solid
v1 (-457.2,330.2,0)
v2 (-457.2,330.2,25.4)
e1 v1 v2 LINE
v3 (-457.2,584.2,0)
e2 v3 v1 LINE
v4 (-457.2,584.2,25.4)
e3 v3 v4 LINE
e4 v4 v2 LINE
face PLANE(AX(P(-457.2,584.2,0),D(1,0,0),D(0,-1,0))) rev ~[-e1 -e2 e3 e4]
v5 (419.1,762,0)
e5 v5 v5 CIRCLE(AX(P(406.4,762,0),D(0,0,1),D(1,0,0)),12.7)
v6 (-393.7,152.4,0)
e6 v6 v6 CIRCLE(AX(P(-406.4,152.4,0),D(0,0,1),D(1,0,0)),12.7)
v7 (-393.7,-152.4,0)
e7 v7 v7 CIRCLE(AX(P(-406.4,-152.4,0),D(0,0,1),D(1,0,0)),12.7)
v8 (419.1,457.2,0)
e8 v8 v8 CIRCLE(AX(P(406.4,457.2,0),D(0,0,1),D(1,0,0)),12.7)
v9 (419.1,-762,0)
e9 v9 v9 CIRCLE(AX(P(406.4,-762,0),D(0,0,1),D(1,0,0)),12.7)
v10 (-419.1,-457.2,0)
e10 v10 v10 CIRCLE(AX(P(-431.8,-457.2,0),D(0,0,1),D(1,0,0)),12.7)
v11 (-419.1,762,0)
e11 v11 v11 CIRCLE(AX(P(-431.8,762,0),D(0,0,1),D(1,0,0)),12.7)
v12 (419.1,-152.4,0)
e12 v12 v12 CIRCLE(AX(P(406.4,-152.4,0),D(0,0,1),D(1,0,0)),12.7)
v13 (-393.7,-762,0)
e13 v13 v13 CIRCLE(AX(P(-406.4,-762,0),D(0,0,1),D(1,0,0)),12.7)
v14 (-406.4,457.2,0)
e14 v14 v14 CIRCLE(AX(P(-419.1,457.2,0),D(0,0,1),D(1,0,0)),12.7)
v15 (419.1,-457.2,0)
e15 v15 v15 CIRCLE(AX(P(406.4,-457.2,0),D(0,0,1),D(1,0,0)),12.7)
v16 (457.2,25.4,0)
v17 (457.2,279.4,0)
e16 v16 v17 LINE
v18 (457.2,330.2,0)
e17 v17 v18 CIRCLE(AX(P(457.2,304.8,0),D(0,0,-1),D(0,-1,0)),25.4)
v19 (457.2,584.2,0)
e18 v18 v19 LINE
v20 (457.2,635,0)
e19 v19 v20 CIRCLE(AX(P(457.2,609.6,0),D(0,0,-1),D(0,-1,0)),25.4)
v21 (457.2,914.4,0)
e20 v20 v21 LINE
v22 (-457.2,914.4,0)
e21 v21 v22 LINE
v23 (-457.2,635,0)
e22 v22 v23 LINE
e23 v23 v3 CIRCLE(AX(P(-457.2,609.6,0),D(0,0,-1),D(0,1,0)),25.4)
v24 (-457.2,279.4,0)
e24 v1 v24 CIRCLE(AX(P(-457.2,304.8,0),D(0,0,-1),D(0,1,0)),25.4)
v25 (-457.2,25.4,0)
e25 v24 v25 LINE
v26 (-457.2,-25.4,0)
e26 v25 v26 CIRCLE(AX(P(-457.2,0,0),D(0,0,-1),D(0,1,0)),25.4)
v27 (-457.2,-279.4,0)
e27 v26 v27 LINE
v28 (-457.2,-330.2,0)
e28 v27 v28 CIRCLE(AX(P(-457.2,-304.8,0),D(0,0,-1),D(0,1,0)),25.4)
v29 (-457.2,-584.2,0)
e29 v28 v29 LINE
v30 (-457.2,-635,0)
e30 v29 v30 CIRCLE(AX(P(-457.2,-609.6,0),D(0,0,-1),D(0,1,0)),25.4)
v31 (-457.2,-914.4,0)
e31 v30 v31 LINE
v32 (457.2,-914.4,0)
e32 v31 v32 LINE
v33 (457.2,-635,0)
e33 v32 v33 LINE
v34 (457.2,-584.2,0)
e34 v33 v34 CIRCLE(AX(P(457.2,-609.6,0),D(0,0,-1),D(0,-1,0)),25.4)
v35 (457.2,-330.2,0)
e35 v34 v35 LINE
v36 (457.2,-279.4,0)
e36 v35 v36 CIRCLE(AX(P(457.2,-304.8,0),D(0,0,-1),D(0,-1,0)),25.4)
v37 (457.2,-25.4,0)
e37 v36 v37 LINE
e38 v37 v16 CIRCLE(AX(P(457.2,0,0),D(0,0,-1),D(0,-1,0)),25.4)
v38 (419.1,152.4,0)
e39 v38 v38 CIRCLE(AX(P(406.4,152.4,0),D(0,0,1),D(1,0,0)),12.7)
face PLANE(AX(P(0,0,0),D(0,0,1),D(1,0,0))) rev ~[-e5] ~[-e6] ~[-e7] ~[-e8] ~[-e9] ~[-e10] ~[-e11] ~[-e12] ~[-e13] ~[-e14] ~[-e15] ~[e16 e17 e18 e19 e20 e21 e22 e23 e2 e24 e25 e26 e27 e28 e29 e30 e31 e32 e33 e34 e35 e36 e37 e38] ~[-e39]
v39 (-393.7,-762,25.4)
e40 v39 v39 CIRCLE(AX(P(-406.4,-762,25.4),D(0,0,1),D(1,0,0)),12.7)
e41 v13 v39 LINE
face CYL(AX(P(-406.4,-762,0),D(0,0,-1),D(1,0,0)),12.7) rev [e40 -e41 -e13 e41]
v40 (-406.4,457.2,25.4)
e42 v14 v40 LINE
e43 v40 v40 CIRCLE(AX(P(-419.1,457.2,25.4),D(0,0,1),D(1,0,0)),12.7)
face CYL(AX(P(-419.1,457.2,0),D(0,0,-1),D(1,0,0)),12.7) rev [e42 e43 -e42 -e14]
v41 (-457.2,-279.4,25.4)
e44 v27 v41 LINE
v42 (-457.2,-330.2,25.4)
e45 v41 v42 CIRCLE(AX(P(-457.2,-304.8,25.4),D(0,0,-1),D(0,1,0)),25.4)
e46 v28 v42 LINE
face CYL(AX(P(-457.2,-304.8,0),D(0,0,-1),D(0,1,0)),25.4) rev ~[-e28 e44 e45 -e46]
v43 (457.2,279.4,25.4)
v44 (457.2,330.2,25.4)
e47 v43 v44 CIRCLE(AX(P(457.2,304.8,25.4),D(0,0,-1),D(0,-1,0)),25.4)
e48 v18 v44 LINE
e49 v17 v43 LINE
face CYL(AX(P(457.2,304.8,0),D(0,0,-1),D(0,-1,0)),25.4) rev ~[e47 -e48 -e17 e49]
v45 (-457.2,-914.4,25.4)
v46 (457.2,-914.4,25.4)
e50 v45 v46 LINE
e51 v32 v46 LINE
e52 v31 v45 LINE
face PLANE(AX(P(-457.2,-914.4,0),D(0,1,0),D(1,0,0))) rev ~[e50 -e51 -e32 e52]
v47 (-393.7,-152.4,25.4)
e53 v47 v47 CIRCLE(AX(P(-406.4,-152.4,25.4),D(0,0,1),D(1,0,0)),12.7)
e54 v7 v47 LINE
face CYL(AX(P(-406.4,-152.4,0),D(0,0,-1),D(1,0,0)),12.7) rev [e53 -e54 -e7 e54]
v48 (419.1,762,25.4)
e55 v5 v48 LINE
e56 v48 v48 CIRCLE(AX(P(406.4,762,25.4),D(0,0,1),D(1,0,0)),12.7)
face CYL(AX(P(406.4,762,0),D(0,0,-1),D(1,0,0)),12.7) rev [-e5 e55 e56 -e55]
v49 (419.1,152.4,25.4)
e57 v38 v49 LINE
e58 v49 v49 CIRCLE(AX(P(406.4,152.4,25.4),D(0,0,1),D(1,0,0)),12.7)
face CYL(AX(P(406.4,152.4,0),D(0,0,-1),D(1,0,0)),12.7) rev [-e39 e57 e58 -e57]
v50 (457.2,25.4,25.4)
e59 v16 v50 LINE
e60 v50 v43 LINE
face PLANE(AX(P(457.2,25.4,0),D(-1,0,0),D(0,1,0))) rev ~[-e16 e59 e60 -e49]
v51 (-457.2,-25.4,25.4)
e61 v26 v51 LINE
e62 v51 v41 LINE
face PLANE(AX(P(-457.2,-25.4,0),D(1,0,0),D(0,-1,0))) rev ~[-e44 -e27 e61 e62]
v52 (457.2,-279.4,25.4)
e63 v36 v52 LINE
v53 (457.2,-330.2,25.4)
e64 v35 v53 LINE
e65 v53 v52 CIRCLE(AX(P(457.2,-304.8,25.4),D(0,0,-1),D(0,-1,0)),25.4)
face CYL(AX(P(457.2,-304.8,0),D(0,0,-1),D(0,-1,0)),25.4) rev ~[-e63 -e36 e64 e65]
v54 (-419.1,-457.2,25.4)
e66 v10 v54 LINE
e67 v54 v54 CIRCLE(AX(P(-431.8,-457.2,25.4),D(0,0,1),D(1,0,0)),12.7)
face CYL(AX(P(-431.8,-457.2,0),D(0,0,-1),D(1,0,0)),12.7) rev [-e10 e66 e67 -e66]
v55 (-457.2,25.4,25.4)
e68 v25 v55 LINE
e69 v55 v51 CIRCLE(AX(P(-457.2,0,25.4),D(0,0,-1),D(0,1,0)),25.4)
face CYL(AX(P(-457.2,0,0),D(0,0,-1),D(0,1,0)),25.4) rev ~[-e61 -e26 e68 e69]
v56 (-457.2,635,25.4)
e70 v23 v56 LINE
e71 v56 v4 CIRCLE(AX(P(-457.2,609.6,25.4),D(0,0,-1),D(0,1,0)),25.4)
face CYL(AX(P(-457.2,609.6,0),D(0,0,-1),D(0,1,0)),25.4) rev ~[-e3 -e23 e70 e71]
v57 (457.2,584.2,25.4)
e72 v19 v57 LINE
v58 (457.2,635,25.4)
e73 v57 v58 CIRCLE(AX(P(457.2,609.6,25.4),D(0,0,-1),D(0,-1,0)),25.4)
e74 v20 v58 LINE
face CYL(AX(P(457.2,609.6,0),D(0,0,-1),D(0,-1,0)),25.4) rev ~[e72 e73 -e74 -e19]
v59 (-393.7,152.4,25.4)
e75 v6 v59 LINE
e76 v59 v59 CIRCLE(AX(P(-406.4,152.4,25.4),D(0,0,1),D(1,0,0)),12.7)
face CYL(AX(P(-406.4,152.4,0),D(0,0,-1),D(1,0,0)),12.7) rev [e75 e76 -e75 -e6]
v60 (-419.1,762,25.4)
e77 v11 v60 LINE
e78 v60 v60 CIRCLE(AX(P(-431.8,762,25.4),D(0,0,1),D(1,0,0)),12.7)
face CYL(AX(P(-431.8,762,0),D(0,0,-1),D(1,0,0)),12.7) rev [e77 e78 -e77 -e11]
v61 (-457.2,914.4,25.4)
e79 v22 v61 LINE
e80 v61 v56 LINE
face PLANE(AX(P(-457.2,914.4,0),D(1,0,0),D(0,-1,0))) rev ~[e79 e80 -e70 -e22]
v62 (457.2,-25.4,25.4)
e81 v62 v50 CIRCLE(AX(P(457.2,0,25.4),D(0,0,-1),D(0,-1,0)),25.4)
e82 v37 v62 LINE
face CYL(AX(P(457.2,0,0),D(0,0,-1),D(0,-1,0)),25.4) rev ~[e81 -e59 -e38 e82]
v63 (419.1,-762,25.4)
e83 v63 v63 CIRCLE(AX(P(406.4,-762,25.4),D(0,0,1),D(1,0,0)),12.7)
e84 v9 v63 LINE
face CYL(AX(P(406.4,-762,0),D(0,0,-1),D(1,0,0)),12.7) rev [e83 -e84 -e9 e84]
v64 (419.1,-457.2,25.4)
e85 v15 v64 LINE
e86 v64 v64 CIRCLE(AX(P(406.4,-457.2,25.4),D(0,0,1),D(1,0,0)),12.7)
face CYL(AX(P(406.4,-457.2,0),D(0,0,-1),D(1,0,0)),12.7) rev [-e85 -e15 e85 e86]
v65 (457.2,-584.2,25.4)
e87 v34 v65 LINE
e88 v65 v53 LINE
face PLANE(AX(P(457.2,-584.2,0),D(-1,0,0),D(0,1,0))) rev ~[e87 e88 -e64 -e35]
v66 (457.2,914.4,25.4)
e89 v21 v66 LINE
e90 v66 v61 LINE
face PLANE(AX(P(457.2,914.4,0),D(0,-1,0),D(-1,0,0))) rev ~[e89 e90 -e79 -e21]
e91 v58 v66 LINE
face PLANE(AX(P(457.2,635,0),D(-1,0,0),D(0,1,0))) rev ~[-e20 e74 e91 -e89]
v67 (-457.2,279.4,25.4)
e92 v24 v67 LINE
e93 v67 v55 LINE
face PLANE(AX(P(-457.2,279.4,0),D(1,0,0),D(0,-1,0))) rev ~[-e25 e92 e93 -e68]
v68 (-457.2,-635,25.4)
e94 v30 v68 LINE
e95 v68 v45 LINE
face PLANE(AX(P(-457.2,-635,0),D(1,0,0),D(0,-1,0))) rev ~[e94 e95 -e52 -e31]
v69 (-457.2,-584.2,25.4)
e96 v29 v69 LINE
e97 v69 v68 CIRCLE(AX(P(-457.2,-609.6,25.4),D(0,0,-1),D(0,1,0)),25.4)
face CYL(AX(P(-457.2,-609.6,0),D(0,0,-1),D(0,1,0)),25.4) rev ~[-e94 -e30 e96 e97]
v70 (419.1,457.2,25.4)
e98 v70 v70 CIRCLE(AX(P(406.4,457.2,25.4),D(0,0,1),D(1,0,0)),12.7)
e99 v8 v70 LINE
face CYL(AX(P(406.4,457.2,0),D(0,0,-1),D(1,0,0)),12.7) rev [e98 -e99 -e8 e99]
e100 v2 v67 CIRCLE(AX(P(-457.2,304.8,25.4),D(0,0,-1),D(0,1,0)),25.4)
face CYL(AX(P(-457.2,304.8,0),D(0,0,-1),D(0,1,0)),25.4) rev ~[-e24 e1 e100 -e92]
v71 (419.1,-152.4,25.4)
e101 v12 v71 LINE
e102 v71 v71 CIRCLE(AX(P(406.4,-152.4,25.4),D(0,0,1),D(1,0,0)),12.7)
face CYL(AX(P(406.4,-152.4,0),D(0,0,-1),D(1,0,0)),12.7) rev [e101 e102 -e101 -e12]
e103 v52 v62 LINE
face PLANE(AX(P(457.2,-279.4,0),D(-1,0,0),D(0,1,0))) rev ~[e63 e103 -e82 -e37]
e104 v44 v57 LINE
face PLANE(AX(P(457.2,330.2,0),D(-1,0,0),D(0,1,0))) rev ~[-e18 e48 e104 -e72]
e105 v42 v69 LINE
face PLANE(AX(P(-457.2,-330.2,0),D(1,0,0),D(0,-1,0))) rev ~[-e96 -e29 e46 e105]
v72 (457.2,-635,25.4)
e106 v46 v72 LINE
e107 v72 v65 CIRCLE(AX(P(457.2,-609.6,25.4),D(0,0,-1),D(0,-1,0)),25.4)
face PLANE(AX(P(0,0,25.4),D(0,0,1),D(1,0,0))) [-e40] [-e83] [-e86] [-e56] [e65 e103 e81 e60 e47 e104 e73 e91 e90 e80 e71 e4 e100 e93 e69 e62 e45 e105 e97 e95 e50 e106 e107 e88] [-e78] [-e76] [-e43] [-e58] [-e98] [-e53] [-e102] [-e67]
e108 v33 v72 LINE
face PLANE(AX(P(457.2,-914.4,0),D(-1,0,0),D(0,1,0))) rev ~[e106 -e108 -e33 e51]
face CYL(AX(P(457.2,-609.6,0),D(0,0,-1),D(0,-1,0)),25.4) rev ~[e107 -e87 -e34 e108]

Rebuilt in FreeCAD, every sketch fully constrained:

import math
import FreeCAD as App
import Part
import Sketcher
Q = App.Units.Quantity

doc = App.newDocument("Part")
body = doc.addObject("PartDesign::Body", "Body")

# Sketch on XY plane
sketch1 = body.newObject("Sketcher::SketchObject", "Sketch")
sketch1.AttachmentSupport = (doc.getObject("XY_Plane"), [""])
sketch1.MapMode = "FlatFace"
sketch1.addGeometry(Part.LineSegment(App.Vector(-457, -914, 0), App.Vector(457, -914, 0)), False)
sketch1.addGeometry(Part.LineSegment(App.Vector(457, -914, 0), App.Vector(457, -635, 0)), False)
sketch1.addGeometry(Part.ArcOfCircle(Part.Circle(App.Vector(457, -610, 0), App.Vector(0, 0, 1), 25), math.radians(90), math.radians(270)), False)
sketch1.addGeometry(Part.LineSegment(App.Vector(457, -584, 0), App.Vector(457, -330, 0)), False)
sketch1.addGeometry(Part.ArcOfCircle(Part.Circle(App.Vector(457, -305, 0), App.Vector(0, 0, 1), 25), math.radians(90), math.radians(270)), False)
sketch1.addGeometry(Part.LineSegment(App.Vector(457, -279, 0), App.Vector(457, -25, 0)), False)
sketch1.addGeometry(Part.ArcOfCircle(Part.Circle(App.Vector(457, 0, 0), App.Vector(0, 0, 1), 25), math.radians(90), math.radians(270)), False)
sketch1.addGeometry(Part.LineSegment(App.Vector(457, 25, 0), App.Vector(457, 279, 0)), False)
sketch1.addGeometry(Part.ArcOfCircle(Part.Circle(App.Vector(457, 305, 0), App.Vector(0, 0, 1), 25), math.radians(90), math.radians(270)), False)
sketch1.addGeometry(Part.LineSegment(App.Vector(457, 330, 0), App.Vector(457, 584, 0)), False)
sketch1.addGeometry(Part.ArcOfCircle(Part.Circle(App.Vector(457, 610, 0), App.Vector(0, 0, 1), 25), math.radians(90), math.radians(270)), False)
sketch1.addGeometry(Part.LineSegment(App.Vector(457, 635, 0), App.Vector(457, 914, 0)), False)
sketch1.addGeometry(Part.LineSegment(App.Vector(457, 914, 0), App.Vector(-457, 914, 0)), False)
sketch1.addGeometry(Part.LineSegment(App.Vector(-457, 914, 0), App.Vector(-457, 635, 0)), False)
sketch1.addGeometry(Part.ArcOfCircle(Part.Circle(App.Vector(-457, 610, 0), App.Vector(0, 0, 1), 25), math.radians(-90), math.radians(90)), False)
sketch1.addGeometry(Part.LineSegment(App.Vector(-457, 584, 0), App.Vector(-457, 330, 0)), False)
sketch1.addGeometry(Part.ArcOfCircle(Part.Circle(App.Vector(-457, 305, 0), App.Vector(0, 0, 1), 25), math.radians(-90), math.radians(90)), False)
sketch1.addGeometry(Part.LineSegment(App.Vector(-457, 279, 0), App.Vector(-457, 25, 0)), False)
sketch1.addGeometry(Part.ArcOfCircle(Part.Circle(App.Vector(-457, 0, 0), App.Vector(0, 0, 1), 25), math.radians(-90), math.radians(90)), False)
sketch1.addGeometry(Part.LineSegment(App.Vector(-457, -25, 0), App.Vector(-457, -279, 0)), False)
sketch1.addGeometry(Part.ArcOfCircle(Part.Circle(App.Vector(-457, -305, 0), App.Vector(0, 0, 1), 25), math.radians(-90), math.radians(90)), False)
sketch1.addGeometry(Part.LineSegment(App.Vector(-457, -330, 0), App.Vector(-457, -584, 0)), False)
sketch1.addGeometry(Part.ArcOfCircle(Part.Circle(App.Vector(-457, -610, 0), App.Vector(0, 0, 1), 25), math.radians(-90), math.radians(90)), False)
sketch1.addGeometry(Part.LineSegment(App.Vector(-457, -635, 0), App.Vector(-457, -914, 0)), False)
sketch1.addGeometry(Part.Circle(App.Vector(-406, -762, 0), App.Vector(0, 0, 1), 13), False)
sketch1.addGeometry(Part.Circle(App.Vector(-432, -457, 0), App.Vector(0, 0, 1), 13), False)
sketch1.addGeometry(Part.Circle(App.Vector(-406, -152, 0), App.Vector(0, 0, 1), 13), False)
sketch1.addGeometry(Part.Circle(App.Vector(406, -762, 0), App.Vector(0, 0, 1), 13), False)
sketch1.addGeometry(Part.Circle(App.Vector(406, -457, 0), App.Vector(0, 0, 1), 13), False)
sketch1.addGeometry(Part.Circle(App.Vector(406, -152, 0), App.Vector(0, 0, 1), 13), False)
sketch1.addGeometry(Part.Circle(App.Vector(-406, 152, 0), App.Vector(0, 0, 1), 13), False)
sketch1.addGeometry(Part.Circle(App.Vector(-419, 457, 0), App.Vector(0, 0, 1), 13), False)
sketch1.addGeometry(Part.Circle(App.Vector(-432, 762, 0), App.Vector(0, 0, 1), 13), False)
sketch1.addGeometry(Part.Circle(App.Vector(406, 152, 0), App.Vector(0, 0, 1), 13), False)
sketch1.addGeometry(Part.Circle(App.Vector(406, 457, 0), App.Vector(0, 0, 1), 13), False)
sketch1.addGeometry(Part.Circle(App.Vector(406, 762, 0), App.Vector(0, 0, 1), 13), False)
sketch1.addConstraint(Sketcher.Constraint("Coincident", 0, 2, 1, 1))
sketch1.addConstraint(Sketcher.Constraint("Coincident", 1, 2, 2, 2))
sketch1.addConstraint(Sketcher.Constraint("Coincident", 2, 1, 3, 1))
sketch1.addConstraint(Sketcher.Constraint("Coincident", 3, 2, 4, 2))
sketch1.addConstraint(Sketcher.Constraint("Coincident", 4, 1, 5, 1))
sketch1.addConstraint(Sketcher.Constraint("Coincident", 5, 2, 6, 2))
sketch1.addConstraint(Sketcher.Constraint("Coincident", 6, 1, 7, 1))
sketch1.addConstraint(Sketcher.Constraint("Coincident", 7, 2, 8, 2))
sketch1.addConstraint(Sketcher.Constraint("Coincident", 8, 1, 9, 1))
sketch1.addConstraint(Sketcher.Constraint("Coincident", 9, 2, 10, 2))
sketch1.addConstraint(Sketcher.Constraint("Coincident", 10, 1, 11, 1))
sketch1.addConstraint(Sketcher.Constraint("Coincident", 11, 2, 12, 1))
sketch1.addConstraint(Sketcher.Constraint("Coincident", 12, 2, 13, 1))
sketch1.addConstraint(Sketcher.Constraint("Coincident", 13, 2, 14, 2))
sketch1.addConstraint(Sketcher.Constraint("Coincident", 14, 1, 15, 1))
sketch1.addConstraint(Sketcher.Constraint("Coincident", 15, 2, 16, 2))
sketch1.addConstraint(Sketcher.Constraint("Coincident", 16, 1, 17, 1))
sketch1.addConstraint(Sketcher.Constraint("Coincident", 17, 2, 18, 2))
sketch1.addConstraint(Sketcher.Constraint("Coincident", 18, 1, 19, 1))
sketch1.addConstraint(Sketcher.Constraint("Coincident", 19, 2, 20, 2))
sketch1.addConstraint(Sketcher.Constraint("Coincident", 20, 1, 21, 1))
sketch1.addConstraint(Sketcher.Constraint("Coincident", 21, 2, 22, 2))
sketch1.addConstraint(Sketcher.Constraint("Coincident", 22, 1, 23, 1))
sketch1.addConstraint(Sketcher.Constraint("Coincident", 23, 2, 0, 1))
sketch1.addConstraint(Sketcher.Constraint("Horizontal", 0))
sketch1.addConstraint(Sketcher.Constraint("Vertical", 1))
sketch1.addConstraint(Sketcher.Constraint("Vertical", 3))
sketch1.addConstraint(Sketcher.Constraint("Vertical", 5))
sketch1.addConstraint(Sketcher.Constraint("Vertical", 7))
sketch1.addConstraint(Sketcher.Constraint("Vertical", 9))
sketch1.addConstraint(Sketcher.Constraint("Vertical", 11))
sketch1.addConstraint(Sketcher.Constraint("Horizontal", 12))
sketch1.addConstraint(Sketcher.Constraint("Vertical", 13))
sketch1.addConstraint(Sketcher.Constraint("Vertical", 15))
sketch1.addConstraint(Sketcher.Constraint("Vertical", 17))
sketch1.addConstraint(Sketcher.Constraint("Vertical", 19))
sketch1.addConstraint(Sketcher.Constraint("Vertical", 21))
sketch1.addConstraint(Sketcher.Constraint("Vertical", 23))
sketch1.addConstraint(Sketcher.Constraint("Equal", 2, 4))
sketch1.addConstraint(Sketcher.Constraint("Equal", 4, 6))
sketch1.addConstraint(Sketcher.Constraint("Equal", 6, 8))
sketch1.addConstraint(Sketcher.Constraint("Equal", 8, 10))
sketch1.addConstraint(Sketcher.Constraint("Equal", 10, 14))
sketch1.addConstraint(Sketcher.Constraint("Equal", 14, 16))
sketch1.addConstraint(Sketcher.Constraint("Equal", 16, 18))
sketch1.addConstraint(Sketcher.Constraint("Equal", 18, 20))
sketch1.addConstraint(Sketcher.Constraint("Equal", 20, 22))
sketch1.addConstraint(Sketcher.Constraint("Equal", 24, 25))
sketch1.addConstraint(Sketcher.Constraint("Equal", 25, 26))
sketch1.addConstraint(Sketcher.Constraint("Equal", 26, 27))
sketch1.addConstraint(Sketcher.Constraint("Equal", 27, 28))
sketch1.addConstraint(Sketcher.Constraint("Equal", 28, 29))
sketch1.addConstraint(Sketcher.Constraint("Equal", 29, 30))
sketch1.addConstraint(Sketcher.Constraint("Equal", 30, 31))
sketch1.addConstraint(Sketcher.Constraint("Equal", 31, 32))
sketch1.addConstraint(Sketcher.Constraint("Equal", 32, 33))
sketch1.addConstraint(Sketcher.Constraint("Equal", 33, 34))
sketch1.addConstraint(Sketcher.Constraint("Equal", 34, 35))
sketch1.addConstraint(Sketcher.Constraint("Symmetric", 2, 3, 14, 3, -1, 1))
sketch1.addConstraint(Sketcher.Constraint("Symmetric", 4, 3, 16, 3, -1, 1))
sketch1.addConstraint(Sketcher.Constraint("Symmetric", 6, 3, 18, 3, -1, 1))
sketch1.addConstraint(Sketcher.Constraint("Symmetric", 8, 3, 20, 3, -1, 1))
sketch1.addConstraint(Sketcher.Constraint("Symmetric", 10, 3, 22, 3, -1, 1))
sketch1.addConstraint(Sketcher.Constraint("Symmetric", 29, 3, 30, 3, -1, 1))
sketch1.addConstraint(Sketcher.Constraint("Symmetric", 26, 3, 33, 3, -1, 1))
sketch1.addConstraint(Sketcher.Constraint("Symmetric", 24, 3, 35, 3, -1, 1))
sketch1.addConstraint(Sketcher.Constraint("Symmetric", 0, 2, 12, 2, -1, 1))
sketch1.addConstraint(Sketcher.Constraint("Symmetric", 10, 3, 14, 3, -2))
sketch1.addConstraint(Sketcher.Constraint("Symmetric", 8, 3, 16, 3, -2))
sketch1.addConstraint(Sketcher.Constraint("Symmetric", 24, 3, 27, 3, -2))
sketch1.addConstraint(Sketcher.Constraint("Symmetric", 26, 3, 29, 3, -2))
sketch1.addConstraint(Sketcher.Constraint("Symmetric", 6, 1, 17, 2, -2))
sketch1.addConstraint(Sketcher.Constraint("Symmetric", 28, 3, 34, 3, -1))
sketch1.addConstraint(Sketcher.Constraint("Horizontal", 25, 3, 28, 3))
sketch1.addConstraint(Sketcher.Constraint("Horizontal", 31, 3, 34, 3))
sketch1.addConstraint(Sketcher.Constraint("Horizontal", 32, 3, 35, 3))
sketch1.addConstraint(Sketcher.Constraint("Vertical", 2, 3, 4, 3))
sketch1.addConstraint(Sketcher.Constraint("Vertical", 4, 3, 6, 3))
sketch1.addConstraint(Sketcher.Constraint("Vertical", 24, 3, 26, 3))
sketch1.addConstraint(Sketcher.Constraint("Vertical", 27, 3, 28, 3))
sketch1.addConstraint(Sketcher.Constraint("Vertical", 25, 3, 32, 3))
sketch1.addConstraint(Sketcher.Constraint("Vertical", 10, 3, 0, 2))
sketch1.addConstraint(Sketcher.Constraint("Vertical", 1, 2, 2, 1))
sketch1.addConstraint(Sketcher.Constraint("Vertical", 3, 2, 4, 1))
sketch1.addConstraint(Sketcher.Constraint("Vertical", 5, 2, 6, 1))
sketch1.addConstraint(Sketcher.Constraint("Vertical", 7, 2, 8, 1))
sketch1.addConstraint(Sketcher.Constraint("Vertical", 9, 2, 10, 1))
sketch1.addConstraint(Sketcher.Constraint("Vertical", 13, 2, 14, 1))
sketch1.addConstraint(Sketcher.Constraint("Vertical", 17, 2, 18, 1))
sketch1.addConstraint(Sketcher.Constraint("Vertical", 19, 2, 20, 1))
sketch1.addConstraint(Sketcher.Constraint("Vertical", 21, 2, 22, 1))
sketch1.addConstraint(Sketcher.Constraint("Equal", 3, 5))
sketch1.addConstraint(Sketcher.Constraint("Diameter", 24, Q("1 in")))
sketch1.addConstraint(Sketcher.Constraint("Radius", 2, Q("1 in")))
sketch1.addConstraint(Sketcher.Constraint("DistanceX", 0, 1, 0, 2, Q("36 in")))
sketch1.addConstraint(Sketcher.Constraint("DistanceY", 1, 1, 1, 2, Q("11 in")))
sketch1.addConstraint(Sketcher.Constraint("DistanceY", 3, 1, 3, 2, Q("10 in")))
sketch1.addConstraint(Sketcher.Constraint("DistanceX", 24, 3, -1, 1, Q("16 in")))
sketch1.addConstraint(Sketcher.Constraint("DistanceY", 24, 3, -1, 1, Q("30 in")))
sketch1.addConstraint(Sketcher.Constraint("DistanceX", 25, 3, -1, 1, Q("17 in")))
sketch1.addConstraint(Sketcher.Constraint("DistanceY", 25, 3, -1, 1, Q("18 in")))
sketch1.addConstraint(Sketcher.Constraint("DistanceY", 26, 3, -1, 1, Q("6 in")))
sketch1.addConstraint(Sketcher.Constraint("DistanceX", 31, 3, -1, 1, Q("16.5 in")))
pad1 = body.newObject("PartDesign::Pad", "Pad")
pad1.Profile = sketch1
pad1.Length = Q("1 in")

doc.recompute()
